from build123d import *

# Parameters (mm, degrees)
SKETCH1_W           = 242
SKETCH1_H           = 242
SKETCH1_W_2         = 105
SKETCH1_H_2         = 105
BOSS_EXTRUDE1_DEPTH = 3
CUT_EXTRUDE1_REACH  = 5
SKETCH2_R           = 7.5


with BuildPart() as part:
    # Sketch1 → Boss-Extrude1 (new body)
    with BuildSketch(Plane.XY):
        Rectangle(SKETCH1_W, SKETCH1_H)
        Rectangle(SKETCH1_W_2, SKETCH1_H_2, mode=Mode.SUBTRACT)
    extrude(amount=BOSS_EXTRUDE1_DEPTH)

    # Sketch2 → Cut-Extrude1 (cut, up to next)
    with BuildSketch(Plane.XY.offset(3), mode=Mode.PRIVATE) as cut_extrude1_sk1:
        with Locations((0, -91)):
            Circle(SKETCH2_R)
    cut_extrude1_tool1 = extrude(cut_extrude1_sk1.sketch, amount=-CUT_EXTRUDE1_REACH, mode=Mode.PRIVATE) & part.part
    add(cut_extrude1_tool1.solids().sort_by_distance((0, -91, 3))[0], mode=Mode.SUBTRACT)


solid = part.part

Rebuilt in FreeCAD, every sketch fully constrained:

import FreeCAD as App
import Part
import Sketcher
from FreeCAD import Vector


def add_polygon(sketch, points):
    """Adds a closed chain of lines whose ends are joined by coincident constraints."""
    first, n = sketch.GeometryCount, len(points)
    for a, b in zip(points, points[1:] + points[:1]):
        sketch.addGeometry(Part.LineSegment(App.Vector(*a, 0), App.Vector(*b, 0)), False)
    for i in range(n):
        sketch.addConstraint(Sketcher.Constraint("Coincident", first + i, 2, first + (i + 1) % n, 1))

doc = App.newDocument("Part")
body = doc.addObject("PartDesign::Body", "Body")

# Sketch on XY plane
sketch1 = body.newObject("Sketcher::SketchObject", "Sketch")
sketch1.AttachmentSupport = (doc.getObject("XY_Plane"), [""])
sketch1.MapMode = "FlatFace"
add_polygon(sketch1, [(-121, 121), (-121, -121), (121, -121), (121, 121)])  # lines 0-3
add_polygon(sketch1, [(52, -52), (-52, -52), (-52, 52), (52, 52)])  # lines 4-7
sketch1.addConstraint([
    Sketcher.Constraint("Vertical", 0),
    Sketcher.Constraint("Horizontal", 1),
    Sketcher.Constraint("Vertical", 2),
    Sketcher.Constraint("Horizontal", 3),
    Sketcher.Constraint("Horizontal", 4),
    Sketcher.Constraint("Vertical", 5),
    Sketcher.Constraint("Horizontal", 6),
    Sketcher.Constraint("Vertical", 7),
    Sketcher.Constraint("Symmetric", 0, 2, 2, 2, -1, 1),
    Sketcher.Constraint("Symmetric", 4, 2, 6, 2, -1, 1),
    Sketcher.Constraint("Equal", 3, 0),
    Sketcher.Constraint("Equal", 6, 5),
    Sketcher.Constraint("DistanceX", 1, 1, 1, 2, 242.0),
    Sketcher.Constraint("DistanceX", 4, 2, 4, 1, 105.0),
])
pad1 = body.newObject("PartDesign::Pad", "Pad")
pad1.Profile = sketch1
pad1.Length = 3

# Sketch on XY plane
sketch2 = body.newObject("Sketcher::SketchObject", "Sketch001")
sketch2.AttachmentSupport = (doc.getObject("XY_Plane"), [""])
sketch2.MapMode = "FlatFace"
sketch2.AttachmentOffset = App.Placement(Vector(0, 0, 3), App.Rotation())
sketch2.addGeometry(Part.Circle(Vector(0, -91, 0), Vector(0, 0, 1), 8), False)
sketch2.addConstraint([
    Sketcher.Constraint("PointOnObject", 0, 3, -2),
    Sketcher.Constraint("Diameter", 0, 15.0),
    Sketcher.Constraint("DistanceY", 0, 3, -1, 1, 91.0),
])
pocket1 = body.newObject("PartDesign::Pocket", "Pocket")
pocket1.Profile = sketch2
pocket1.Type = "UpToFirst"

doc.recompute()
